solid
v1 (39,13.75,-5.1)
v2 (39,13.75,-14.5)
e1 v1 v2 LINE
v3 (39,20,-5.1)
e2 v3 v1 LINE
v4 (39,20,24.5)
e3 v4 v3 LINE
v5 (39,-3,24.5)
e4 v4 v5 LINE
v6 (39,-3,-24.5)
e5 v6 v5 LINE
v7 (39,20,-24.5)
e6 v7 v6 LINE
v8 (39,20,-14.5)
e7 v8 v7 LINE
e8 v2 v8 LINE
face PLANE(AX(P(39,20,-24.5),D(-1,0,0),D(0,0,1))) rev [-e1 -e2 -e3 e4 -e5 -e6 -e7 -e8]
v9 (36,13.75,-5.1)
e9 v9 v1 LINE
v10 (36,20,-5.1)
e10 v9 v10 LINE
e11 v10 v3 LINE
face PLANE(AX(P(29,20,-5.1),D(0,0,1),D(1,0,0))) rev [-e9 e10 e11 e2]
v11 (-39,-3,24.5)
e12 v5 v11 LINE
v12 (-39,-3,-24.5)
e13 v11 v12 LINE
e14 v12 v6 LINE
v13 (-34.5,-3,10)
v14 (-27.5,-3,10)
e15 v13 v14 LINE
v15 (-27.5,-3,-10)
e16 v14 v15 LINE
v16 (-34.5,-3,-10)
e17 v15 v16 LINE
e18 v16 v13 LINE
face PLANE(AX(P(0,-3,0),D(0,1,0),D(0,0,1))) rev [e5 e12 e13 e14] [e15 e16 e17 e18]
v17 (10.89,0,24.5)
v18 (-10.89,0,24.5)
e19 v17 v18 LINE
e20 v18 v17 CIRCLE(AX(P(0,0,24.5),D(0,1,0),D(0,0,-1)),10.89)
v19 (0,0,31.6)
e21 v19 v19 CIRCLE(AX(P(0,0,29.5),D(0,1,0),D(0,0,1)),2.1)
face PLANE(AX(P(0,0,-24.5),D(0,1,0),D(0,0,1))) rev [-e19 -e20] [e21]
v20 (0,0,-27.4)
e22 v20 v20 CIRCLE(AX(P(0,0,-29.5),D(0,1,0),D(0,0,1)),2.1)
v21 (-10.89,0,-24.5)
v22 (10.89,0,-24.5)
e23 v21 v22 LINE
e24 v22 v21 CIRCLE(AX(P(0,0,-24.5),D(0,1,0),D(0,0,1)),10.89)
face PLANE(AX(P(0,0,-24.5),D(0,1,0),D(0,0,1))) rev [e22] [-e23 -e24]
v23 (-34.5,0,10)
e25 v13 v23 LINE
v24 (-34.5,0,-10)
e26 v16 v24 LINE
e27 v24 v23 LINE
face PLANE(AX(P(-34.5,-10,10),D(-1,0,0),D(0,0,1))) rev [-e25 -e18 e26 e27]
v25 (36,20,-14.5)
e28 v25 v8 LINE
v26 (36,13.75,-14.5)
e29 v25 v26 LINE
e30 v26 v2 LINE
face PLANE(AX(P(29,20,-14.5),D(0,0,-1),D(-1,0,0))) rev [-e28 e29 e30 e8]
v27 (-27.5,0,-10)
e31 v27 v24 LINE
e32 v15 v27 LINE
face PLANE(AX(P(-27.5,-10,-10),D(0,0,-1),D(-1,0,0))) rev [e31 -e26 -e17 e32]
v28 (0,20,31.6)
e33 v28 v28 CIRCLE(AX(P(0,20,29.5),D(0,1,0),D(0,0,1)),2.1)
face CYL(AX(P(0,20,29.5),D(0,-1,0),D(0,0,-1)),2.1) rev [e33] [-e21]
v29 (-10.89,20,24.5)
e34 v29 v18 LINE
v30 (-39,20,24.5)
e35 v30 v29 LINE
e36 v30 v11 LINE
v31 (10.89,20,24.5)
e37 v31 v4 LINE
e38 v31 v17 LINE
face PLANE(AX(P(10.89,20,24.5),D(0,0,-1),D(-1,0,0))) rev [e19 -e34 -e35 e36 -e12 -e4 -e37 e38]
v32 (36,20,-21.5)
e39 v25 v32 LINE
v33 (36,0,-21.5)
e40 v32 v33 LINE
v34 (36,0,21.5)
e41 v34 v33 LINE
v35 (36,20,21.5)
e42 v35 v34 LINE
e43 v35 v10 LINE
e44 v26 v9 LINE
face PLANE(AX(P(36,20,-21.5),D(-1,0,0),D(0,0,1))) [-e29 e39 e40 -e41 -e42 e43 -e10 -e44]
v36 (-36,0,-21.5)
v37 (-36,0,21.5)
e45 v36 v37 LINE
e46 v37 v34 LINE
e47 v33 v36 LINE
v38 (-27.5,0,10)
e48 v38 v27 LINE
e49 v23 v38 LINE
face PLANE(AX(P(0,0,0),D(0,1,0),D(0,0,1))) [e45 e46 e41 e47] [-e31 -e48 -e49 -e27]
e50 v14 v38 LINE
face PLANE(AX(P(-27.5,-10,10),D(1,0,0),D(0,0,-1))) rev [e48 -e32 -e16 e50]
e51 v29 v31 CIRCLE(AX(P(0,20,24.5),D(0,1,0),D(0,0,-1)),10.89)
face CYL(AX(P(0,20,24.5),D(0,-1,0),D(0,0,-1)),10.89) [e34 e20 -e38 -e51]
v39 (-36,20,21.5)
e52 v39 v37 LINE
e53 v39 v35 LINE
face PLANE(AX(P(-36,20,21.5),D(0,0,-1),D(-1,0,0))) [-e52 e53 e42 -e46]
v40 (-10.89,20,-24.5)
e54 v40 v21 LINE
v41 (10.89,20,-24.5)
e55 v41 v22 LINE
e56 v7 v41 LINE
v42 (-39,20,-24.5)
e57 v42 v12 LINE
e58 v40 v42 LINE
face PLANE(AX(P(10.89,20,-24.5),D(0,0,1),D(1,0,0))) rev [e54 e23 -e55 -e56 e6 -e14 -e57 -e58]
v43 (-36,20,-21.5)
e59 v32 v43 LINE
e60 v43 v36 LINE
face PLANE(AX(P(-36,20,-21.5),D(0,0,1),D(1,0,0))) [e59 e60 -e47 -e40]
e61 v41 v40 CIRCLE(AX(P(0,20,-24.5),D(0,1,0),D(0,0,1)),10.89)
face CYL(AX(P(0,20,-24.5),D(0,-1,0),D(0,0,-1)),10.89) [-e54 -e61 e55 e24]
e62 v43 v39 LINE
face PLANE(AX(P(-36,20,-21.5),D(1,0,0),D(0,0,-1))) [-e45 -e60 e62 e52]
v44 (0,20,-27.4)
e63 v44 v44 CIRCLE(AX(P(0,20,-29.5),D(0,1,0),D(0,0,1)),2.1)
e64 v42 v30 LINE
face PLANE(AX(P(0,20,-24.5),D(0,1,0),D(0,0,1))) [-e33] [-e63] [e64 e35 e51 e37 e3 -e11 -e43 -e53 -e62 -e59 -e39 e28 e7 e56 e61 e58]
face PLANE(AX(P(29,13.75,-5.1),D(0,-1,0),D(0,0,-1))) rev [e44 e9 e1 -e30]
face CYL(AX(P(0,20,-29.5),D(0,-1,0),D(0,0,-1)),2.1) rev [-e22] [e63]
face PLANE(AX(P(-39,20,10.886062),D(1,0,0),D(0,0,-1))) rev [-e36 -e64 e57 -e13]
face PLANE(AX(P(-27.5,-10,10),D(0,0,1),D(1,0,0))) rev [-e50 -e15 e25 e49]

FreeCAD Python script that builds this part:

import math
import FreeCAD as App
import Part
import Sketcher
Q = App.Units.Quantity


def add_polygon(sketch, points):
    """Adds a closed chain of lines whose ends are joined by coincident constraints."""
    first, n = sketch.GeometryCount, len(points)
    for a, b in zip(points, points[1:] + points[:1]):
        sketch.addGeometry(Part.LineSegment(App.Vector(*a, 0), App.Vector(*b, 0)), False)
    for i in range(n):
        sketch.addConstraint(Sketcher.Constraint("Coincident", first + i, 2, first + (i + 1) % n, 1))

doc = App.newDocument("Part")
body = doc.addObject("PartDesign::Body", "Body")

# Sketch on XZ plane
sketch1 = body.newObject("Sketcher::SketchObject", "Sketch")
sketch1.AttachmentSupport = (doc.getObject("XZ_Plane"), [""])
sketch1.MapMode = "FlatFace"
sketch1.addGeometry(Part.LineSegment(App.Vector(-39, -24.5, 0), App.Vector(-39, 24.5, 0)), False)  # 0
sketch1.addGeometry(Part.LineSegment(App.Vector(-39, 24.5, 0), App.Vector(-10.9, 24.5, 0)), False)  # 1
sketch1.addGeometry(Part.ArcOfCircle(Part.Circle(App.Vector(0, 24.5, 0), App.Vector(0, 0, 1), 10.9), math.radians(0), math.radians(180)), False)  # 2
sketch1.addGeometry(Part.LineSegment(App.Vector(10.9, 24.5, 0), App.Vector(39, 24.5, 0)), False)  # 3
sketch1.addGeometry(Part.LineSegment(App.Vector(39, 24.5, 0), App.Vector(39, -24.5, 0)), False)  # 4
sketch1.addGeometry(Part.LineSegment(App.Vector(39, -24.5, 0), App.Vector(10.9, -24.5, 0)), False)  # 5
sketch1.addGeometry(Part.ArcOfCircle(Part.Circle(App.Vector(0, -24.5, 0), App.Vector(0, 0, 1), 10.9), math.radians(180), math.radians(360)), False)  # 6
sketch1.addGeometry(Part.LineSegment(App.Vector(-10.9, -24.5, 0), App.Vector(-39, -24.5, 0)), False)  # 7
sketch1.addGeometry(Part.Circle(App.Vector(0, 29.5, 0), App.Vector(0, 0, 1), 2.1), False)  # 8
add_polygon(sketch1, [(36, 21.5), (-36, 21.5), (-36, -21.5), (36, -21.5)])  # lines 9-12
sketch1.addGeometry(Part.Circle(App.Vector(0, -29.5, 0), App.Vector(0, 0, 1), 2.1), False)  # 13
sketch1.addConstraint(Sketcher.Constraint("Coincident", 0, 2, 1, 1))
sketch1.addConstraint(Sketcher.Constraint("Coincident", 1, 2, 2, 2))
sketch1.addConstraint(Sketcher.Constraint("Coincident", 2, 1, 3, 1))
sketch1.addConstraint(Sketcher.Constraint("Coincident", 3, 2, 4, 1))
sketch1.addConstraint(Sketcher.Constraint("Coincident", 4, 2, 5, 1))
sketch1.addConstraint(Sketcher.Constraint("Coincident", 5, 2, 6, 2))
sketch1.addConstraint(Sketcher.Constraint("Coincident", 6, 1, 7, 1))
sketch1.addConstraint(Sketcher.Constraint("Coincident", 7, 2, 0, 1))
sketch1.addConstraint(Sketcher.Constraint("Vertical", 0))
sketch1.addConstraint(Sketcher.Constraint("Horizontal", 1))
sketch1.addConstraint(Sketcher.Constraint("Horizontal", 3))
sketch1.addConstraint(Sketcher.Constraint("Vertical", 4))
sketch1.addConstraint(Sketcher.Constraint("Horizontal", 5))
sketch1.addConstraint(Sketcher.Constraint("Horizontal", 7))
sketch1.addConstraint(Sketcher.Constraint("Horizontal", 9))
sketch1.addConstraint(Sketcher.Constraint("Vertical", 10))
sketch1.addConstraint(Sketcher.Constraint("Horizontal", 11))
sketch1.addConstraint(Sketcher.Constraint("Vertical", 12))
sketch1.addConstraint(Sketcher.Constraint("Equal", 2, 6))
sketch1.addConstraint(Sketcher.Constraint("Equal", 8, 13))
sketch1.addConstraint(Sketcher.Constraint("Symmetric", 2, 3, 6, 3, -1, 1))
sketch1.addConstraint(Sketcher.Constraint("Symmetric", 8, 3, 13, 3, -1, 1))
sketch1.addConstraint(Sketcher.Constraint("Symmetric", 0, 2, 4, 2, -1, 1))
sketch1.addConstraint(Sketcher.Constraint("Symmetric", 9, 2, 11, 2, -1, 1))
sketch1.addConstraint(Sketcher.Constraint("Symmetric", 1, 2, 2, 1, -2))
sketch1.addConstraint(Sketcher.Constraint("PointOnObject", 8, 3, -2))
sketch1.addConstraint(Sketcher.Constraint("Horizontal", 2, 3, 0, 2))
sketch1.addConstraint(Sketcher.Constraint("Horizontal", 5, 2, 6, 1))
sketch1.addConstraint(Sketcher.Constraint("Diameter", 8, Q("4.2 mm")))
sketch1.addConstraint(Sketcher.Constraint("DistanceX", 9, 2, 9, 1, Q("72 mm")))
sketch1.addConstraint(Sketcher.Constraint("DistanceY", 0, 1, 0, 2, Q("49 mm")))
sketch1.addConstraint(Sketcher.Constraint("DistanceY", 10, 2, 10, 1, Q("43 mm")))
sketch1.addConstraint(Sketcher.Constraint("Radius", 2, Q("10.89 mm")))
sketch1.addConstraint(Sketcher.Constraint("DistanceX", 0, 2, -1, 1, Q("39 mm")))
sketch1.addConstraint(Sketcher.Constraint("DistanceY", 2, 3, 8, 3, Q("5 mm")))
pad1 = body.newObject("PartDesign::Pad", "Pad")
pad1.Profile = sketch1
pad1.Length = 20
pad1.Reversed = True

# Sketch on XZ plane
sketch2 = body.newObject("Sketcher::SketchObject", "Sketch001")
sketch2.AttachmentSupport = (doc.getObject("XZ_Plane"), [""])
sketch2.MapMode = "FlatFace"
add_polygon(sketch2, [(-39, 24), (-39, -24), (39, -24), (39, 24)])  # lines 0-3
sketch2.addConstraint(Sketcher.Constraint("Vertical", 0))
sketch2.addConstraint(Sketcher.Constraint("Horizontal", 1))
sketch2.addConstraint(Sketcher.Constraint("Vertical", 2))
sketch2.addConstraint(Sketcher.Constraint("Horizontal", 3))
sketch2.addConstraint(Sketcher.Constraint("Symmetric", 0, 2, 2, 2, -1, 1))
sketch2.addConstraint(Sketcher.Constraint("DistanceX", 1, 1, 1, 2, Q("78 mm")))
sketch2.addConstraint(Sketcher.Constraint("DistanceY", 0, 2, 0, 1, Q("49 mm")))
pad2 = body.newObject("PartDesign::Pad", "Pad001")
pad2.Profile = sketch2
pad2.Length = 3

# Sketch on XZ plane
sketch3 = body.newObject("Sketcher::SketchObject", "Sketch002")
sketch3.AttachmentSupport = (doc.getObject("XZ_Plane"), [""])
sketch3.MapMode = "FlatFace"
add_polygon(sketch3, [(-34, -10), (-34, 10), (-28, 10), (-28, -10)])  # lines 0-3
sketch3.addConstraint(Sketcher.Constraint("Vertical", 0))
sketch3.addConstraint(Sketcher.Constraint("Horizontal", 1))
sketch3.addConstraint(Sketcher.Constraint("Vertical", 2))
sketch3.addConstraint(Sketcher.Constraint("Horizontal", 3))
sketch3.addConstraint(Sketcher.Constraint("DistanceX", 1, 1, 1, 2, Q("7 mm")))
sketch3.addConstraint(Sketcher.Constraint("DistanceY", 0, 1, 0, 2, Q("20 mm")))
sketch3.addConstraint(Sketcher.Constraint("DistanceY", -1, 1, 0, 2, Q("10 mm")))
sketch3.addConstraint(Sketcher.Constraint("DistanceX", 0, 2, -1, 1, Q("34.5 mm")))
pocket1 = body.newObject("PartDesign::Pocket", "Pocket")
pocket1.Profile = sketch3
pocket1.Length = 10
pocket1.Reversed = True

# Sketch on YZ plane
sketch4 = body.newObject("Sketcher::SketchObject", "Sketch003")
sketch4.AttachmentSupport = (doc.getObject("YZ_Plane"), [""])
sketch4.MapMode = "FlatFace"
sketch4.AttachmentOffset = App.Placement(App.Vector(0, 0, 39), App.Rotation())
add_polygon(sketch4, [(20, -5), (14, -5), (14, -14), (20, -14)])  # lines 0-3
sketch4.addConstraint(Sketcher.Constraint("Horizontal", 0))
sketch4.addConstraint(Sketcher.Constraint("Vertical", 1))
sketch4.addConstraint(Sketcher.Constraint("Horizontal", 2))
sketch4.addConstraint(Sketcher.Constraint("Vertical", 3))
sketch4.addConstraint(Sketcher.Constraint("DistanceY", 1, 2, 1, 1, Q("9.4 mm")))
sketch4.addConstraint(Sketcher.Constraint("DistanceX", -1, 1, 2, 2, Q("20 mm")))
sketch4.addConstraint(Sketcher.Constraint("DistanceX", 0, 2, 0, 1, Q("6.25 mm")))
sketch4.addConstraint(Sketcher.Constraint("DistanceY", 0, 2, -1, 1, Q("5.1 mm")))
pocket2 = body.newObject("PartDesign::Pocket", "Pocket001")
pocket2.Profile = sketch4
pocket2.Length = 10

doc.recompute()
